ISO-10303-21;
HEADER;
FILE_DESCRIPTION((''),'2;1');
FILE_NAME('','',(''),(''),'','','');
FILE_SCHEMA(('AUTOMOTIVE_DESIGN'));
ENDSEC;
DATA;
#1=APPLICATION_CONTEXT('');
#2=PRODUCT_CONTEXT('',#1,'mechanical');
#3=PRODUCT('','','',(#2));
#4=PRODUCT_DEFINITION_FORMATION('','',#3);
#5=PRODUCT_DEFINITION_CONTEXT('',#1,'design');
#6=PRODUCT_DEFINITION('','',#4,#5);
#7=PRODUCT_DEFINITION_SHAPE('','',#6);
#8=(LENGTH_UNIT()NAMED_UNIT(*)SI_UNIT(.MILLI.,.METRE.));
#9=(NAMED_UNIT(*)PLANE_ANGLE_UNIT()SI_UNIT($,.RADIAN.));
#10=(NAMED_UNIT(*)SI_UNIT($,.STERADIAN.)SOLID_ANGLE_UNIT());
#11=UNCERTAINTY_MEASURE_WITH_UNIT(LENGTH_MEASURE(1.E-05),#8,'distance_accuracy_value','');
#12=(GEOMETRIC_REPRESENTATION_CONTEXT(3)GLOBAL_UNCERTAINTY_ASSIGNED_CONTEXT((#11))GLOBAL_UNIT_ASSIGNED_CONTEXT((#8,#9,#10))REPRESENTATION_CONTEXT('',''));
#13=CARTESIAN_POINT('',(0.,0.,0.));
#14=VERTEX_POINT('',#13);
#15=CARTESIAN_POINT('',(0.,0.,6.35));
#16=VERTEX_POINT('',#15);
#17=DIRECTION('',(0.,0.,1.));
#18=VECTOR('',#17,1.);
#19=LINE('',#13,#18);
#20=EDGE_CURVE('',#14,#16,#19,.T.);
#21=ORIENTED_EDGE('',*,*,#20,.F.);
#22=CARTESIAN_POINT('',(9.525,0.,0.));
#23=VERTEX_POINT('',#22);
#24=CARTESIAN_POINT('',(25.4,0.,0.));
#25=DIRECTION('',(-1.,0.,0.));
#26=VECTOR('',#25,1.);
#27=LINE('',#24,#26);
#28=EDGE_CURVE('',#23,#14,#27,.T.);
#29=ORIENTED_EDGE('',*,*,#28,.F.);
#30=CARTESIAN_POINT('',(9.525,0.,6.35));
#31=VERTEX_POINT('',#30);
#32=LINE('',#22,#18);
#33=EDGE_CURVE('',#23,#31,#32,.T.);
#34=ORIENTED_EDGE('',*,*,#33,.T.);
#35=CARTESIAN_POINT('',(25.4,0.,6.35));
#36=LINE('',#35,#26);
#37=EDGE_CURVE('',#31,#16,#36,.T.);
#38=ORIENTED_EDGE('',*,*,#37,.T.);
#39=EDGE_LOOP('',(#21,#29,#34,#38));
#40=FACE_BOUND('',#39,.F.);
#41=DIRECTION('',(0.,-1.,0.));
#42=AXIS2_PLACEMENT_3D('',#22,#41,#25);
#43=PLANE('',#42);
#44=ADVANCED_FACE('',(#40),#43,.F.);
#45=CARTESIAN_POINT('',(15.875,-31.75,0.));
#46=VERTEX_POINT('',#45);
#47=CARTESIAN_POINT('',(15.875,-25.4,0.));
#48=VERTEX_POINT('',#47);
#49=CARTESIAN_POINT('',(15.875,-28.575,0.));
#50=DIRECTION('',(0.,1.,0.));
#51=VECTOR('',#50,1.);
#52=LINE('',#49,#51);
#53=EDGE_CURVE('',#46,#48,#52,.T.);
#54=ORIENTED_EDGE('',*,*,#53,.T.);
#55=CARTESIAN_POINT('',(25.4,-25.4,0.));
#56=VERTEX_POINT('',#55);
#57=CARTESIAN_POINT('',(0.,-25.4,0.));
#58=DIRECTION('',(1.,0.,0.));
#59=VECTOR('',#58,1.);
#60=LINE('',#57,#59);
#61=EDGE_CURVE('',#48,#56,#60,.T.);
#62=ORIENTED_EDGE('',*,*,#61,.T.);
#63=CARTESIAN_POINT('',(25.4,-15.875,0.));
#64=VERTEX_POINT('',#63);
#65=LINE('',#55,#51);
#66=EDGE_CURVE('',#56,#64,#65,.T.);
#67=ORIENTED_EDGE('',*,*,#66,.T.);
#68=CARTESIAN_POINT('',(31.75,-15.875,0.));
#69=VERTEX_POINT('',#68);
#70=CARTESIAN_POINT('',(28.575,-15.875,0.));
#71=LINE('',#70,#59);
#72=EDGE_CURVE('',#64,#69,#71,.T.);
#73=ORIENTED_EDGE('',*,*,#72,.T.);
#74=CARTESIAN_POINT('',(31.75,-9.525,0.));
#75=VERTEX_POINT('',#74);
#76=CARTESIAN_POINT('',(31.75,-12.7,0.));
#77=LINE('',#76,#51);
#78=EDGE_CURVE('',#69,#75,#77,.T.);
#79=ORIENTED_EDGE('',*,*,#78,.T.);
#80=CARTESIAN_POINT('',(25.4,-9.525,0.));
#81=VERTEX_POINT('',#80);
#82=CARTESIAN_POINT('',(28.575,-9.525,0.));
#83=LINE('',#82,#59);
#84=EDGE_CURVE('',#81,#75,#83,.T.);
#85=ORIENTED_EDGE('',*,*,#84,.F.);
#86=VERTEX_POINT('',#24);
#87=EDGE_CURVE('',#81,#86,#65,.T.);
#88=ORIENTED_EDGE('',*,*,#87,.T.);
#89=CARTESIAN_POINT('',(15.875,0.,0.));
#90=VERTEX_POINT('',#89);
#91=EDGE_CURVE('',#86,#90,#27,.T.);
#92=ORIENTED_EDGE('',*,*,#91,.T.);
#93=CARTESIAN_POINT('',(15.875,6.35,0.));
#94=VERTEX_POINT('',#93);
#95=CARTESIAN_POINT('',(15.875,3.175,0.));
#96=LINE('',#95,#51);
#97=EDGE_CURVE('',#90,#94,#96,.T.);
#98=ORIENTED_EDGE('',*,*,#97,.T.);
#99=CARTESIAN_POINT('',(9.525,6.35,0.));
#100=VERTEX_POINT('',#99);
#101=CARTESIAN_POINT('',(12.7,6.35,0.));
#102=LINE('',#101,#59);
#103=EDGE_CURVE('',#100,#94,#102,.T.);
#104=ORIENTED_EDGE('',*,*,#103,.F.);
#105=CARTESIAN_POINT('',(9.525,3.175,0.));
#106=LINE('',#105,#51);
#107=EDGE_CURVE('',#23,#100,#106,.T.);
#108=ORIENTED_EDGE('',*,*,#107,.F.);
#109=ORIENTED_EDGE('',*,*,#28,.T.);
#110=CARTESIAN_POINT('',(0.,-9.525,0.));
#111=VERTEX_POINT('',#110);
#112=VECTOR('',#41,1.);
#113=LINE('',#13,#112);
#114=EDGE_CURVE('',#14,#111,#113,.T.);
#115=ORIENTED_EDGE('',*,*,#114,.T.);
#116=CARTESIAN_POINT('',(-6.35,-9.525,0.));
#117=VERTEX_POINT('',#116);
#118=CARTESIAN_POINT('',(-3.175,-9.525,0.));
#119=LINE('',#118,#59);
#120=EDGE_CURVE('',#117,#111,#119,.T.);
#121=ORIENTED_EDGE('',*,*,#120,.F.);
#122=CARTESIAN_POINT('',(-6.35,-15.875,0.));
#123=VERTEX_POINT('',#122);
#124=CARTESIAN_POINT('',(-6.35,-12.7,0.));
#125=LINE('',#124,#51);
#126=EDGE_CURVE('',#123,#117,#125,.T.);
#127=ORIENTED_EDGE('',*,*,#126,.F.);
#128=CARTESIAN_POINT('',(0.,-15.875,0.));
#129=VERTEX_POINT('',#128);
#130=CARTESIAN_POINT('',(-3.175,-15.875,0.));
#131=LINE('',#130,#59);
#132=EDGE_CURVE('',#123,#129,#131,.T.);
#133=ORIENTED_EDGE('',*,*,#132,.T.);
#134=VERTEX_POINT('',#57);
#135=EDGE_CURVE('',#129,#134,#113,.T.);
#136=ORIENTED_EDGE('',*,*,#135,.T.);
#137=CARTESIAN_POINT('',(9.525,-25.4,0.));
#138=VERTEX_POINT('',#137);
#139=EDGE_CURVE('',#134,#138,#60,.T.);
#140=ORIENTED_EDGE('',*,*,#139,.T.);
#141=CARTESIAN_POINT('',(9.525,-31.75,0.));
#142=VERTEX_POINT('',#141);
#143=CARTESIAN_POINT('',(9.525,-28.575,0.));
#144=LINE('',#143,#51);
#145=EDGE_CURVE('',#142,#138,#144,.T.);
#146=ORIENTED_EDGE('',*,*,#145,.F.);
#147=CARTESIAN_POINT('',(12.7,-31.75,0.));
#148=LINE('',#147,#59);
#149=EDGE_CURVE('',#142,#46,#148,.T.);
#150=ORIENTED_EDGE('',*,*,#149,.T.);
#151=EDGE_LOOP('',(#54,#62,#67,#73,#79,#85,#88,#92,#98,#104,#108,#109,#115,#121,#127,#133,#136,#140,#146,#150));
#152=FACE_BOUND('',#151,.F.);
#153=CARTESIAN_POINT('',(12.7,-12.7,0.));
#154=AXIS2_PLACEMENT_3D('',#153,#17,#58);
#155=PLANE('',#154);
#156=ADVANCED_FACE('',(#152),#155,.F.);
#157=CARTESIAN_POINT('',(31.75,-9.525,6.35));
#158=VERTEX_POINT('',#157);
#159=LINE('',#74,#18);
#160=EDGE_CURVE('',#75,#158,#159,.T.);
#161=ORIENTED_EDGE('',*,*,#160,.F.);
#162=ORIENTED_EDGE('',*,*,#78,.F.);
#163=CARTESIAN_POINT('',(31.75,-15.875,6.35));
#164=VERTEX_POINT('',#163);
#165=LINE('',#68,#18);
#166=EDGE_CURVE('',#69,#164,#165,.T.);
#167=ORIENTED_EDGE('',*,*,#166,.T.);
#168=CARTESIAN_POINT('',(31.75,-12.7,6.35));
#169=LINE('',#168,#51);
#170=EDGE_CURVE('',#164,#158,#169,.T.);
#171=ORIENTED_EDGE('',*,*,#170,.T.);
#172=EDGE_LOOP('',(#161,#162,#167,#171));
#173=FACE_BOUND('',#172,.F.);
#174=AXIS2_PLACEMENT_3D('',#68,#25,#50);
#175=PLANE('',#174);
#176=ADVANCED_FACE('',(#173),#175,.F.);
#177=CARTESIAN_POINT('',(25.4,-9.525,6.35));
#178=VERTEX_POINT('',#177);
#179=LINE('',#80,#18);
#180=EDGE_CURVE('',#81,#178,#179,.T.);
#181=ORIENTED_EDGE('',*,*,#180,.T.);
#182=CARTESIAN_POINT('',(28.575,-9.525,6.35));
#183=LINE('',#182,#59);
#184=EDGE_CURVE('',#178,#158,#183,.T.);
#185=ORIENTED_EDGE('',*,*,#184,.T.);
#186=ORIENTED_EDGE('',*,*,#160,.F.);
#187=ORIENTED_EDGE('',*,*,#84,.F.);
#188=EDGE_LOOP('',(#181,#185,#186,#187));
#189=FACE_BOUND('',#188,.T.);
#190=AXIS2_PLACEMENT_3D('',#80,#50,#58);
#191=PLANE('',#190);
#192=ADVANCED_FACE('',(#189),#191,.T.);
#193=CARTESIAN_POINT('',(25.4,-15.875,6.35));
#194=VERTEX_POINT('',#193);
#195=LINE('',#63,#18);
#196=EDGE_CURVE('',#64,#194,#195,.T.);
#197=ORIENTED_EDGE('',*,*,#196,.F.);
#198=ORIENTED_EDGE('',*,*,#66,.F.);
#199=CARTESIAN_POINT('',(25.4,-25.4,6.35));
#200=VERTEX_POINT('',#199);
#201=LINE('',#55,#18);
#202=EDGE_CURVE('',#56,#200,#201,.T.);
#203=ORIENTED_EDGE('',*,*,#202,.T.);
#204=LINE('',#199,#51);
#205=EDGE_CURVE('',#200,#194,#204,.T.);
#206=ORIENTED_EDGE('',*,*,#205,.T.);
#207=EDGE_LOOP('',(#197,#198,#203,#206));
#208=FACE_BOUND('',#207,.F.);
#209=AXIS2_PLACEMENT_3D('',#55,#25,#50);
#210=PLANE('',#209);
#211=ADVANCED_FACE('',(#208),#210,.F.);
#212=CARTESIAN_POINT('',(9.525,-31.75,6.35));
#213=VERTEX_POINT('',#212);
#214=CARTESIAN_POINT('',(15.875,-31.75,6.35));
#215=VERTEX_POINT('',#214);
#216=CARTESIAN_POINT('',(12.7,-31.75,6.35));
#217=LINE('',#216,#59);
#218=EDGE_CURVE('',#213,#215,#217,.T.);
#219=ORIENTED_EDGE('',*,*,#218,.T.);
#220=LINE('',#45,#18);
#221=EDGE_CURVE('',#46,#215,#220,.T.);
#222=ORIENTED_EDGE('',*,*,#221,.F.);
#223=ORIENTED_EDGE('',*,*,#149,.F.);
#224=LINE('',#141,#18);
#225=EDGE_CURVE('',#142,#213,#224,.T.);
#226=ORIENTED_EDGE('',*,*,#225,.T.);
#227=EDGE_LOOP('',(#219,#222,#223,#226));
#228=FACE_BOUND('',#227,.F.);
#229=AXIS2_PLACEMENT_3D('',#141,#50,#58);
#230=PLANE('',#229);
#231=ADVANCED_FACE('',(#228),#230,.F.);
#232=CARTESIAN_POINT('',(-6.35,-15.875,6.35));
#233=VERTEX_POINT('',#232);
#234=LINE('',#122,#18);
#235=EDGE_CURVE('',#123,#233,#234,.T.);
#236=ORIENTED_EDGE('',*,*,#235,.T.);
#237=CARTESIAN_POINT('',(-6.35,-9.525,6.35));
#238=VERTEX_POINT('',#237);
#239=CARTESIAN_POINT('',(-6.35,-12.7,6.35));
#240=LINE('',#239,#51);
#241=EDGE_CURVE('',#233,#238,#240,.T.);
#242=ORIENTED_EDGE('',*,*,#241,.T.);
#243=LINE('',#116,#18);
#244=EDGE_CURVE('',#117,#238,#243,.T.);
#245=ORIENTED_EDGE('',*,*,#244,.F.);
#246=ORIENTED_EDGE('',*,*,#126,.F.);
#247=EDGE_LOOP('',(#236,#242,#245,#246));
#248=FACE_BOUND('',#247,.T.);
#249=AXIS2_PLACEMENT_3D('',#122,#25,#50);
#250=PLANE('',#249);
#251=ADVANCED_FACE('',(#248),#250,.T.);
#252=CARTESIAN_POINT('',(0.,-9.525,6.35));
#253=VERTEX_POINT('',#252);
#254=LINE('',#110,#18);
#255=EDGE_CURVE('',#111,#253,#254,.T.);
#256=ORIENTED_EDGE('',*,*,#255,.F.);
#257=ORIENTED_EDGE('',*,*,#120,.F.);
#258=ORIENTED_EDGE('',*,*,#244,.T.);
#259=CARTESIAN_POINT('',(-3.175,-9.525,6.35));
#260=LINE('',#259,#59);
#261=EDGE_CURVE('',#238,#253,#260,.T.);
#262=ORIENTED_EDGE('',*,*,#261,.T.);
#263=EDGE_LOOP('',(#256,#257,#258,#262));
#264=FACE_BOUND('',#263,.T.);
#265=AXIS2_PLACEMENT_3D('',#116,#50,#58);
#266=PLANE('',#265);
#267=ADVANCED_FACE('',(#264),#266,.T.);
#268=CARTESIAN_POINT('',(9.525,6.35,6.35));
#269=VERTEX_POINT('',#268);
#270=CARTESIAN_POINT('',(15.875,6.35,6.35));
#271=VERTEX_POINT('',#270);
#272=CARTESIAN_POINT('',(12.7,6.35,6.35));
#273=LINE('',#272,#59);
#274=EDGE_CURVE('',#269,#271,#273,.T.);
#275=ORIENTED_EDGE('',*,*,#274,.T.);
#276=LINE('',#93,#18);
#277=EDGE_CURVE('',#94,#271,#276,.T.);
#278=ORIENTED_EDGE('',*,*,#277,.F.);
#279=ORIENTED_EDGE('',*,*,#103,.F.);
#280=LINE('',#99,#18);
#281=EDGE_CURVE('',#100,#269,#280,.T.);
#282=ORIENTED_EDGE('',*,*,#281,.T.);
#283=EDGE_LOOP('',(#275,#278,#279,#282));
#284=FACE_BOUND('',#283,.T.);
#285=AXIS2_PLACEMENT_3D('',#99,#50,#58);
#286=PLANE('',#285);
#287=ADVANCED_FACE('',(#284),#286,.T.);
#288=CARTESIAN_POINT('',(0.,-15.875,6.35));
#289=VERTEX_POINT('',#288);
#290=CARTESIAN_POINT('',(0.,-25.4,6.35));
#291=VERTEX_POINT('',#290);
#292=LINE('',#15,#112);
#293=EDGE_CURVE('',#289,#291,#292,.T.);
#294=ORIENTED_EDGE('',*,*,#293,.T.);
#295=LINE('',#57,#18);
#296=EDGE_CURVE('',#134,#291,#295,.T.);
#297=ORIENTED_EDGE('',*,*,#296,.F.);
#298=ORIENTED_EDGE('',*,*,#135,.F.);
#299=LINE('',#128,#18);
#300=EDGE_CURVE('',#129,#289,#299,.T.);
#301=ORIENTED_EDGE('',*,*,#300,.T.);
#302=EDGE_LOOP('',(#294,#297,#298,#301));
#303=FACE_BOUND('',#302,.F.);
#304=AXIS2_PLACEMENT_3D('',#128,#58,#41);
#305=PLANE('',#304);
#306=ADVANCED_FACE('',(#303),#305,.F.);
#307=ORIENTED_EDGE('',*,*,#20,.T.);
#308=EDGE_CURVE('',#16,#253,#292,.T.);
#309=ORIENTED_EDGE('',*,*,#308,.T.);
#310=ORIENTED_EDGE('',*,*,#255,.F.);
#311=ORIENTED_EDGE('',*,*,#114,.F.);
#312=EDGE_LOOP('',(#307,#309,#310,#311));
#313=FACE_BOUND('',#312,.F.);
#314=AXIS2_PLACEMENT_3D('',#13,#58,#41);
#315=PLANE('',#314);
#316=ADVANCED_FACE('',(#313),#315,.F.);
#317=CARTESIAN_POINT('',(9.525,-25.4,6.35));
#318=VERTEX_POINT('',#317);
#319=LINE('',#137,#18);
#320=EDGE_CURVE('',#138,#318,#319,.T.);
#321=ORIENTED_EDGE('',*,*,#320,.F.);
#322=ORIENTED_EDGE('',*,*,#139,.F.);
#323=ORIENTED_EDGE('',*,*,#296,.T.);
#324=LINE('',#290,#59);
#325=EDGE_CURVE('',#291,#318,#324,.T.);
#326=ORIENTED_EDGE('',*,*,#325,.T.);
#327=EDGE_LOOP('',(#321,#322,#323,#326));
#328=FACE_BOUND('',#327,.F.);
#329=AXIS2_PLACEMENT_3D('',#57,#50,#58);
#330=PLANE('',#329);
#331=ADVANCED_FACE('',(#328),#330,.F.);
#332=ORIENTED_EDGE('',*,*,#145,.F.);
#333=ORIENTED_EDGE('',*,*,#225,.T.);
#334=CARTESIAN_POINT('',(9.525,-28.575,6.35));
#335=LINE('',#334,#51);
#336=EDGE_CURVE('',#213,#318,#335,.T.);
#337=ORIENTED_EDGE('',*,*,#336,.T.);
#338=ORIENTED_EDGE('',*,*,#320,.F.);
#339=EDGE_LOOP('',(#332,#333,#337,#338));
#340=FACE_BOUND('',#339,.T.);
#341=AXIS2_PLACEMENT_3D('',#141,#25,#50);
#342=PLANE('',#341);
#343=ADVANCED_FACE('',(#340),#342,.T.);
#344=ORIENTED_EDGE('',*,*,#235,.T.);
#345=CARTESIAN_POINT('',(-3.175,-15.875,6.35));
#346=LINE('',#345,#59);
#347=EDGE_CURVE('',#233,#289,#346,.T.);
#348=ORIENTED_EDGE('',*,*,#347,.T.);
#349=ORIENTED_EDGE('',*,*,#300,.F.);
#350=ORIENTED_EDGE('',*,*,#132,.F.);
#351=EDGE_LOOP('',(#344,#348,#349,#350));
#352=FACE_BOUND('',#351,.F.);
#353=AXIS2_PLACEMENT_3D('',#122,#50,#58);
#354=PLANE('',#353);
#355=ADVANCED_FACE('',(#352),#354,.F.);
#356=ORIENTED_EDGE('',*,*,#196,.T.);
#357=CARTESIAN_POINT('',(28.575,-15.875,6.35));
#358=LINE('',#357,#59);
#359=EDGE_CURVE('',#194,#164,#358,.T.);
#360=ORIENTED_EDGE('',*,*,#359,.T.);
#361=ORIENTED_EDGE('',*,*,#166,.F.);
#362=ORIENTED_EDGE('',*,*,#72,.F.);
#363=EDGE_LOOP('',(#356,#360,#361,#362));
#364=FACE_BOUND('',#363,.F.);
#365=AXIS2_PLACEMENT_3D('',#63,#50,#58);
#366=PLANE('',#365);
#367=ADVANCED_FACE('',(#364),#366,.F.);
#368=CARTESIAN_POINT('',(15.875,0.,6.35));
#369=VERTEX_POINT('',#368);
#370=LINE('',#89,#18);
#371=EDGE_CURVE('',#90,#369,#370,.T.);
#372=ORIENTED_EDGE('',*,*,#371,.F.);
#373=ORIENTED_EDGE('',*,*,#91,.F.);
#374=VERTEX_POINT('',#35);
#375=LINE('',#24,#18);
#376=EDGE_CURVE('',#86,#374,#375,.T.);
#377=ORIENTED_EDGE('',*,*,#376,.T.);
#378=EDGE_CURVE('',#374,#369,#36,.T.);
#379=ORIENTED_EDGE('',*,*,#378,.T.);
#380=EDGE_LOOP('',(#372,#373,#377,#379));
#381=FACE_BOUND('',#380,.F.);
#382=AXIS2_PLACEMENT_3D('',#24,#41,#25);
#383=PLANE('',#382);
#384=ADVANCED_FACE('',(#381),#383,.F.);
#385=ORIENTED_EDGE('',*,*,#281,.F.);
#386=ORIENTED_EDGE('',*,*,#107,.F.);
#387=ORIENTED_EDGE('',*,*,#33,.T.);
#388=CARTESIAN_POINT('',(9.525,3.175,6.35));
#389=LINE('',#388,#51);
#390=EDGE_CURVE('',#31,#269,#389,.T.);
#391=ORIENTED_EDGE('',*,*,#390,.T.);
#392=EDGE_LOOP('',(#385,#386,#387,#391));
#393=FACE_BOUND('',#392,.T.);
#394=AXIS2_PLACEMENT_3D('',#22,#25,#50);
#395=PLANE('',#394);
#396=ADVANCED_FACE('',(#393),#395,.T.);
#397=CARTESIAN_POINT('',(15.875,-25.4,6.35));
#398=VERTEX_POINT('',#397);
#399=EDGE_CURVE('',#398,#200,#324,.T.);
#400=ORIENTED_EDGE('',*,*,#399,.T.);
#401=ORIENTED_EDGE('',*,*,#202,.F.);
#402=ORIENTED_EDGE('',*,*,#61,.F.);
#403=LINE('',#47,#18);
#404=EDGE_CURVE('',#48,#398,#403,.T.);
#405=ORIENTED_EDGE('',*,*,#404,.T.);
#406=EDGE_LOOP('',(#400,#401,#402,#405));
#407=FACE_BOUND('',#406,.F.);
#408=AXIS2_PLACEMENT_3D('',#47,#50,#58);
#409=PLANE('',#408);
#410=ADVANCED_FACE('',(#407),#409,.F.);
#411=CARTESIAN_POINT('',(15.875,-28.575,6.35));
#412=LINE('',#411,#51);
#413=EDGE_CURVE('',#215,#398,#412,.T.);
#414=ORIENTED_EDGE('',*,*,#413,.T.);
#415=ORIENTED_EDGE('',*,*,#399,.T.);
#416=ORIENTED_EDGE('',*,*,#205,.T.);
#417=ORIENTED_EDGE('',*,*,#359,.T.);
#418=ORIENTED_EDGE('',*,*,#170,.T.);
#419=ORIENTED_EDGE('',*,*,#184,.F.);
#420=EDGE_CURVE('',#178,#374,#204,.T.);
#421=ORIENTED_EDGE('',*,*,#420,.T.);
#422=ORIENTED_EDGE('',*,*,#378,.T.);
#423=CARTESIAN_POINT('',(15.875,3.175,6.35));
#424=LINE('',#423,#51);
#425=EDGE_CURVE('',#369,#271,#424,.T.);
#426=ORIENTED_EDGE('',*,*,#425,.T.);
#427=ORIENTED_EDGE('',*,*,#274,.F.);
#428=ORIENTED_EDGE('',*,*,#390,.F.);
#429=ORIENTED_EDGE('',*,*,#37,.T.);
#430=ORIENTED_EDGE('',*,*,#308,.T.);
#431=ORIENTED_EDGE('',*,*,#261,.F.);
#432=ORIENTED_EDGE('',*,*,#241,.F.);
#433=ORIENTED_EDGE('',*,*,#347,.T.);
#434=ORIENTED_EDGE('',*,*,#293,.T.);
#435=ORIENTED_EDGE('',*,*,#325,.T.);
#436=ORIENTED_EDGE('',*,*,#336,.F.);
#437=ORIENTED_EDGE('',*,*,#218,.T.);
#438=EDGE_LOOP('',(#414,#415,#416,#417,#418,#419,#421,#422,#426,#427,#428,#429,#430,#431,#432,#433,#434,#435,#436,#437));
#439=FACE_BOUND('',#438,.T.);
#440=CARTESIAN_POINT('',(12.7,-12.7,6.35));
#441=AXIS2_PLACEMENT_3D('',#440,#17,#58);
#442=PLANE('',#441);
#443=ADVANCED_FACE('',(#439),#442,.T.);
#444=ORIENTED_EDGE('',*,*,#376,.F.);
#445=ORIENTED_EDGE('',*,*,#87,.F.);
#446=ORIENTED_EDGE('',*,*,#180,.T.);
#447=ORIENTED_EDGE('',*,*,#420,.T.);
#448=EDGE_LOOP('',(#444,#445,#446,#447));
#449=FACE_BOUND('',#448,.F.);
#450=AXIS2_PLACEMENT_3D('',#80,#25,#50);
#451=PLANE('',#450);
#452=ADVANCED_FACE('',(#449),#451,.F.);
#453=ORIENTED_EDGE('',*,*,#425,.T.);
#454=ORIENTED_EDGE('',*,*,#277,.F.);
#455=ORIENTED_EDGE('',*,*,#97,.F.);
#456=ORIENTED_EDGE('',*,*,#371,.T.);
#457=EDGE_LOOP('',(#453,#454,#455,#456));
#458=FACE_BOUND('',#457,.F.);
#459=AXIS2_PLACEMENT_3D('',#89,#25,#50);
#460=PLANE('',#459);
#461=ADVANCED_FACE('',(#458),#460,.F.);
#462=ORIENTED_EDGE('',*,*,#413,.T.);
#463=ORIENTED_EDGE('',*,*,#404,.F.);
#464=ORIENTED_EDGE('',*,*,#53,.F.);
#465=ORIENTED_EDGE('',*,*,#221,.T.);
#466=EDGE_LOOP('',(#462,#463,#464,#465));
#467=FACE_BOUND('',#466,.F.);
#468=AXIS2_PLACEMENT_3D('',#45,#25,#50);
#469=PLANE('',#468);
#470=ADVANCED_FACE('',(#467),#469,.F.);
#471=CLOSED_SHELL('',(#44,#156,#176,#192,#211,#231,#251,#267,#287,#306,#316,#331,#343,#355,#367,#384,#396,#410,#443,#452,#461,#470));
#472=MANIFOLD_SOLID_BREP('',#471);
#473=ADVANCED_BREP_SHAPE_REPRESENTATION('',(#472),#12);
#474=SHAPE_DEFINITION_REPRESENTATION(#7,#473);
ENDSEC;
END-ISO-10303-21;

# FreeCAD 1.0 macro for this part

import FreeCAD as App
import Part
import Sketcher
from FreeCAD import Vector
Q = App.Units.Quantity


def add_polygon(sketch, points):
    """Adds a closed chain of lines whose ends are joined by coincident constraints."""
    first, n = sketch.GeometryCount, len(points)
    for a, b in zip(points, points[1:] + points[:1]):
        sketch.addGeometry(Part.LineSegment(App.Vector(*a, 0), App.Vector(*b, 0)), False)
    for i in range(n):
        sketch.addConstraint(Sketcher.Constraint("Coincident", first + i, 2, first + (i + 1) % n, 1))

doc = App.newDocument("Part")
body = doc.addObject("PartDesign::Body", "Body")

sketch1 = doc.addObject("Sketcher::SketchObject", "Sketch")
body.addObject(sketch1)
sketch1.AttachmentSupport = (doc.XY_Plane, [""])
sketch1.MapMode = "FlatFace"
add_polygon(sketch1, [(0, 0), (0, -10), (-6, -10), (-6, -16), (0, -16), (0, -25), (10, -25), (10, -32), (16, -32), (16, -25), (25, -25), (25, -16), (32, -16), (32, -10), (25, -10), (25, 0), (16, 0), (16, 6), (10, 6), (10, 0)])
sketch1.addConstraint([
    Sketcher.Constraint("Vertical", 0),
    Sketcher.Constraint("Horizontal", 1),
    Sketcher.Constraint("Vertical", 2),
    Sketcher.Constraint("Horizontal", 3),
    Sketcher.Constraint("Vertical", 4),
    Sketcher.Constraint("Horizontal", 5),
    Sketcher.Constraint("Vertical", 6),
    Sketcher.Constraint("Horizontal", 7),
    Sketcher.Constraint("Vertical", 8),
    Sketcher.Constraint("Horizontal", 9),
    Sketcher.Constraint("Vertical", 10),
    Sketcher.Constraint("Horizontal", 11),
    Sketcher.Constraint("Vertical", 12),
    Sketcher.Constraint("Horizontal", 13),
    Sketcher.Constraint("Vertical", 14),
    Sketcher.Constraint("Horizontal", 15),
    Sketcher.Constraint("Vertical", 16),
    Sketcher.Constraint("Horizontal", 17),
    Sketcher.Constraint("Vertical", 18),
    Sketcher.Constraint("Horizontal", 19),
    Sketcher.Constraint("Coincident", 19, 2, -1, 1),
    Sketcher.Constraint("PointOnObject", 3, 2, -2),
    Sketcher.Constraint("PointOnObject", 14, 2, -1),
    Sketcher.Constraint("Horizontal", 5, 2, 8, 2),
    Sketcher.Constraint("Horizontal", 3, 2, 10, 2),
    Sketcher.Constraint("Horizontal", 1, 2, 12, 2),
    Sketcher.Constraint("Vertical", 10, 2, 13, 2),
    Sketcher.Constraint("Vertical", 8, 2, 15, 2),
    Sketcher.Constraint("Vertical", 6, 2, 17, 2),
    Sketcher.Constraint("Equal", 3, 7),
    Sketcher.Constraint("Equal", 5, 9),
    Sketcher.Constraint("Equal", 7, 11),
    Sketcher.Constraint("Equal", 19, 0),
    Sketcher.Constraint("Equal", 17, 2),
    Sketcher.Constraint("Equal", 0, 4),
    Sketcher.Constraint("Equal", 2, 6),
    Sketcher.Constraint("Equal", 12, 16),
    Sketcher.Constraint("DistanceY", 4, 2, -1, 1, Q("1 in")),
    Sketcher.Constraint("DistanceX", 1, 2, 1, 1, Q("0.25 in")),
])
pad1 = doc.addObject("PartDesign::Pad", "Pad")
body.addObject(pad1)
pad1.Profile = sketch1
pad1.Length = Q("0.25 in")

doc.recompute()
